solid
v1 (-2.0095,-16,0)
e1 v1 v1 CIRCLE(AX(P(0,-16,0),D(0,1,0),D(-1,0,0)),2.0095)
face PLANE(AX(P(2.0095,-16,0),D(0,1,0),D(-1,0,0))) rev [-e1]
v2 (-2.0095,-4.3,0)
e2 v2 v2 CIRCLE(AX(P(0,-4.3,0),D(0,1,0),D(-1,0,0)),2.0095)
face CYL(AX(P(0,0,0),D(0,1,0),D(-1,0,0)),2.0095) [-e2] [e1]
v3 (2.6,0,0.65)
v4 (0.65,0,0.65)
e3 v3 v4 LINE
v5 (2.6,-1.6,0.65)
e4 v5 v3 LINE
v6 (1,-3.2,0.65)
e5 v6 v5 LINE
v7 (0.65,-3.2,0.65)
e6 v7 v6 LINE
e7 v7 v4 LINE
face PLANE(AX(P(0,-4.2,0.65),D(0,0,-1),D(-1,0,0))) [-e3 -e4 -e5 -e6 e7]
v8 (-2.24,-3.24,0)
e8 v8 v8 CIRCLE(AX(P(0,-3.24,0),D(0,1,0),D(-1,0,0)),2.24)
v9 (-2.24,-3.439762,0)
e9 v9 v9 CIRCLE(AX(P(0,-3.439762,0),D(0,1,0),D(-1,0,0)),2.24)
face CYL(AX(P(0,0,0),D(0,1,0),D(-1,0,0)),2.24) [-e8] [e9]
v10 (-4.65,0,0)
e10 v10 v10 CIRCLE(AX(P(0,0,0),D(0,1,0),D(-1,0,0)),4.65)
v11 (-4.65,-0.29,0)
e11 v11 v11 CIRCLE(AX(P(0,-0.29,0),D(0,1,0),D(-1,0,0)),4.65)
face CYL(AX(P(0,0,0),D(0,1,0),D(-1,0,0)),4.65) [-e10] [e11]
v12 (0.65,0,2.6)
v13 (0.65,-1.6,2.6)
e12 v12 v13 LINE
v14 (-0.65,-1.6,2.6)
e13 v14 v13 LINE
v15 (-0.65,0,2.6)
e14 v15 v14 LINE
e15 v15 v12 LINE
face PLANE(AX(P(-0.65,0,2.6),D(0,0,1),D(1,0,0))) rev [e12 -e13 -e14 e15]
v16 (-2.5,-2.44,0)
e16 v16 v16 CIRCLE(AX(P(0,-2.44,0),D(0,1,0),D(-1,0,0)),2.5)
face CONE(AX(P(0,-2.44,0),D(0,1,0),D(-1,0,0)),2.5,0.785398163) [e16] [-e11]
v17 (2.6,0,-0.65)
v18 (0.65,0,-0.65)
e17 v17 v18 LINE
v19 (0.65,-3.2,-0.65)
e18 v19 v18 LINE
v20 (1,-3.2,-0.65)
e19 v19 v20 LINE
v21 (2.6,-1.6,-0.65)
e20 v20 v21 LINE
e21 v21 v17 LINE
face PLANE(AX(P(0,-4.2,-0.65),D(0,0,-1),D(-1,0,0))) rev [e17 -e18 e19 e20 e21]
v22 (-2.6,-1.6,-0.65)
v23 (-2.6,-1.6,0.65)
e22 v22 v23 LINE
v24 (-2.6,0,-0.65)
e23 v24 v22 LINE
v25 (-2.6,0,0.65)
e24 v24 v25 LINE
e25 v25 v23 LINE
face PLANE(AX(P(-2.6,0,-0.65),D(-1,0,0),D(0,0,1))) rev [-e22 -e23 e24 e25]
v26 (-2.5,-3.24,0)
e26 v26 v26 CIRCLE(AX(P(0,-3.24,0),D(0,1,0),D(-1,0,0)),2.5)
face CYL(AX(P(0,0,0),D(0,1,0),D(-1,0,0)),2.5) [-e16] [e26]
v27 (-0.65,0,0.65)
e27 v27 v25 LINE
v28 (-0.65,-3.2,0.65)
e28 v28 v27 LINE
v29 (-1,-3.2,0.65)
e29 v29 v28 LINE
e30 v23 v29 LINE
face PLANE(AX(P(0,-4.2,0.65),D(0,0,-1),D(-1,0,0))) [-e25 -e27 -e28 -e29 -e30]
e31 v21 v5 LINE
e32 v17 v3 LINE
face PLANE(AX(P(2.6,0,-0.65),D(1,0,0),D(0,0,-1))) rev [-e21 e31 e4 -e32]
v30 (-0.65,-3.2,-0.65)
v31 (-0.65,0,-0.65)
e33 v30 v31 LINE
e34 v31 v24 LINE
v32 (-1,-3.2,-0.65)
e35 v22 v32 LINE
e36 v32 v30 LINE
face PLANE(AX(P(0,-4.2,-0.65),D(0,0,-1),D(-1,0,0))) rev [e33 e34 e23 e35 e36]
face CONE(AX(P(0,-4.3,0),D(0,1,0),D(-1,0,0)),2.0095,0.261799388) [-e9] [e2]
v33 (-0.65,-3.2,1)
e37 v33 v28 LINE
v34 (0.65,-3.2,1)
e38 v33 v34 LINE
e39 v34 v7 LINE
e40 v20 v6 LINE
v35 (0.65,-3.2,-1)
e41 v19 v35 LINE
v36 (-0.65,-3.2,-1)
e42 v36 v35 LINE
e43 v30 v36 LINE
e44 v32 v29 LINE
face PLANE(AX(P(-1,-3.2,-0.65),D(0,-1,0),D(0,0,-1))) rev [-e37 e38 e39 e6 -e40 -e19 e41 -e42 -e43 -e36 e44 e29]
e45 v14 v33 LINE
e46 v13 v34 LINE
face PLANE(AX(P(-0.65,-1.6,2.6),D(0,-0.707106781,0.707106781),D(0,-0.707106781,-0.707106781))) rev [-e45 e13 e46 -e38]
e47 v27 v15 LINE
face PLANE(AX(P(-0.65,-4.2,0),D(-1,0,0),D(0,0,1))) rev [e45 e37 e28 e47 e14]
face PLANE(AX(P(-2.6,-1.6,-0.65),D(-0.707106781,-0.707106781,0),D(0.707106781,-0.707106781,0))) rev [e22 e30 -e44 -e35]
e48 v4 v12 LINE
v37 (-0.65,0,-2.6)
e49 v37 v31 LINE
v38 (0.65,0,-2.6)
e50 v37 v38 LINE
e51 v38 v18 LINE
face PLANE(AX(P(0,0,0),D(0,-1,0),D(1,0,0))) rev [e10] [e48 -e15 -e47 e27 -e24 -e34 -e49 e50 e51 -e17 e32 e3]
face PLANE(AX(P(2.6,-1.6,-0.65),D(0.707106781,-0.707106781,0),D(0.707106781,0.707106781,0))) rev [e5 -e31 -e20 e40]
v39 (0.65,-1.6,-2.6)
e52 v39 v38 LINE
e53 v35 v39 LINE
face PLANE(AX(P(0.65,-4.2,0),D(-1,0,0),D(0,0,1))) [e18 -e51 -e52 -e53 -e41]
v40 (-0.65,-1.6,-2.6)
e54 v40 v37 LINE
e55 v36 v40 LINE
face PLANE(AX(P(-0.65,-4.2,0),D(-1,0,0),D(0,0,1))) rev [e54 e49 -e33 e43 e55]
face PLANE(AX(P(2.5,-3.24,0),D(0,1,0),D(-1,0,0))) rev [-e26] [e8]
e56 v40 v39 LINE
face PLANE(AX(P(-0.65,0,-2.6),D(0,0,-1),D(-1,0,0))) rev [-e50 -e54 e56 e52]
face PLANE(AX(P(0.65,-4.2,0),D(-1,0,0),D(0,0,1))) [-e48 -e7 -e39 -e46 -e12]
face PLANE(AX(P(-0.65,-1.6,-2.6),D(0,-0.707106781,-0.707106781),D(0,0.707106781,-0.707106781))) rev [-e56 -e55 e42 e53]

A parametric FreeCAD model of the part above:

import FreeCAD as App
import Part
import Sketcher

V = App.Vector
Q = App.Units.Quantity

doc = App.newDocument("Part")
body = doc.addObject("PartDesign::Body", "Body")

sketch1 = body.newObject("Sketcher::SketchObject", "Sketch")
sketch1.AttachmentSupport = (doc.getObject("XY_Plane"), [""])
sketch1.MapMode = "FlatFace"
sketch1.addGeometry([
    Part.LineSegment(V(4.65, 0, 0), V(0, 0, 0)),
    Part.LineSegment(V(0, 0, 0), V(0, -16, 0)),
    Part.LineSegment(V(0, -16, 0), V(2.01, -16, 0)),
    Part.LineSegment(V(2.01, -16, 0), V(2.01, -4.3, 0)),
    Part.LineSegment(V(2.01, -4.3, 0), V(2.24, -3.44, 0)),
    Part.LineSegment(V(2.24, -3.44, 0), V(2.24, -3.24, 0)),
    Part.LineSegment(V(2.24, -3.24, 0), V(2.5, -3.24, 0)),
    Part.LineSegment(V(2.5, -3.24, 0), V(2.5, -2.44, 0)),
    Part.LineSegment(V(2.5, -2.44, 0), V(4.65, -0.29, 0)),
    Part.LineSegment(V(4.65, -0.29, 0), V(4.65, 0, 0)),
], False)
sketch1.addConstraint([
    Sketcher.Constraint("Coincident", 0, 2, 1, 1),
    Sketcher.Constraint("Coincident", 1, 2, 2, 1),
    Sketcher.Constraint("Coincident", 2, 2, 3, 1),
    Sketcher.Constraint("Coincident", 3, 2, 4, 1),
    Sketcher.Constraint("Coincident", 4, 2, 5, 1),
    Sketcher.Constraint("Coincident", 5, 2, 6, 1),
    Sketcher.Constraint("Coincident", 6, 2, 7, 1),
    Sketcher.Constraint("Coincident", 7, 2, 8, 1),
    Sketcher.Constraint("Coincident", 8, 2, 9, 1),
    Sketcher.Constraint("Coincident", 9, 2, 0, 1),
    Sketcher.Constraint("Horizontal", 0),
    Sketcher.Constraint("Vertical", 1),
    Sketcher.Constraint("Horizontal", 2),
    Sketcher.Constraint("Vertical", 3),
    Sketcher.Constraint("Vertical", 5),
    Sketcher.Constraint("Horizontal", 6),
    Sketcher.Constraint("Vertical", 7),
    Sketcher.Constraint("Vertical", 9),
    Sketcher.Constraint("Coincident", 0, 2, -1, 1),
    Sketcher.Constraint("DistanceY", 1, 2, 1, 1, Q("16 mm")),
    Sketcher.Constraint("Angle", 4, Q("75 deg")),
    Sketcher.Constraint("Angle", 8, Q("45 deg")),
    Sketcher.Constraint("DistanceY", 3, 1, 3, 2, Q("11.7 mm")),
    Sketcher.Constraint("DistanceY", 7, 1, 7, 2, Q("0.8 mm")),
    Sketcher.Constraint("DistanceX", 0, 2, 0, 1, Q("4.65 mm")),
    Sketcher.Constraint("DistanceX", 6, 1, 6, 2, Q("0.26 mm")),
    Sketcher.Constraint("DistanceY", 9, 1, 9, 2, Q("0.29 mm")),
    Sketcher.Constraint("DistanceX", -1, 1, 6, 2, Q("2.5 mm")),
    Sketcher.Constraint("DistanceX", 2, 1, 2, 2, Q("2.0095 mm")),
])
revolution = body.newObject("PartDesign::Revolution", "Revolution")
revolution.Profile = sketch1
revolution.ReferenceAxis = (sketch1, ["V_Axis"])
revolution.Angle = 360

sketch2 = body.newObject("Sketcher::SketchObject", "Sketch001")
sketch2.AttachmentSupport = (doc.getObject("XY_Plane"), [""])
sketch2.MapMode = "FlatFace"
sketch2.addGeometry([
    Part.LineSegment(V(-1, -3.2, 0), V(1, -3.2, 0)),
    Part.LineSegment(V(1, -3.2, 0), V(2.6, -1.6, 0)),
    Part.LineSegment(V(2.6, -1.6, 0), V(2.6, 0, 0)),
    Part.LineSegment(V(2.6, 0, 0), V(-2.6, 0, 0)),
    Part.LineSegment(V(-2.6, 0, 0), V(-2.6, -1.6, 0)),
    Part.LineSegment(V(-2.6, -1.6, 0), V(-1, -3.2, 0)),
], False)
sketch2.addConstraint([
    Sketcher.Constraint("Coincident", 0, 2, 1, 1),
    Sketcher.Constraint("Coincident", 1, 2, 2, 1),
    Sketcher.Constraint("Coincident", 2, 2, 3, 1),
    Sketcher.Constraint("Coincident", 3, 2, 4, 1),
    Sketcher.Constraint("Coincident", 4, 2, 5, 1),
    Sketcher.Constraint("Coincident", 5, 2, 0, 1),
    Sketcher.Constraint("Horizontal", 0),
    Sketcher.Constraint("Vertical", 2),
    Sketcher.Constraint("Horizontal", 3),
    Sketcher.Constraint("Vertical", 4),
    Sketcher.Constraint("Symmetric", 2, 2, 3, 2, -1, 1),
    Sketcher.Constraint("Perpendicular", 1, 5),
    Sketcher.Constraint("Horizontal", 1, 2, 4, 2),
    Sketcher.Constraint("Equal", 1, 5),
    Sketcher.Constraint("DistanceX", 0, 1, 0, 2, Q("2 mm")),
    Sketcher.Constraint("DistanceX", 3, 2, 3, 1, Q("5.2 mm")),
    Sketcher.Constraint("DistanceY", 2, 1, 2, 2, Q("1.6 mm")),
])
pocket1 = body.newObject("PartDesign::Pocket", "Pocket")
pocket1.Profile = sketch2
pocket1.Type = "TwoLengths"
pocket1.Length = 0.65
pocket1.Length2 = 0.65
pocket1.Reversed = True

sketch3 = body.newObject("Sketcher::SketchObject", "Sketch002")
sketch3.AttachmentSupport = (doc.getObject("YZ_Plane"), [""])
sketch3.MapMode = "FlatFace"
sketch3.addGeometry([
    Part.LineSegment(V(-3.2, 1, 0), V(-3.2, -1, 0)),
    Part.LineSegment(V(-3.2, -1, 0), V(-1.6, -2.6, 0)),
    Part.LineSegment(V(-1.6, -2.6, 0), V(0, -2.6, 0)),
    Part.LineSegment(V(0, -2.6, 0), V(0, 2.6, 0)),
    Part.LineSegment(V(0, 2.6, 0), V(-1.6, 2.6, 0)),
    Part.LineSegment(V(-1.6, 2.6, 0), V(-3.2, 1, 0)),
], False)
sketch3.addConstraint([
    Sketcher.Constraint("Coincident", 0, 2, 1, 1),
    Sketcher.Constraint("Coincident", 1, 2, 2, 1),
    Sketcher.Constraint("Coincident", 2, 2, 3, 1),
    Sketcher.Constraint("Coincident", 3, 2, 4, 1),
    Sketcher.Constraint("Coincident", 4, 2, 5, 1),
    Sketcher.Constraint("Coincident", 5, 2, 0, 1),
    Sketcher.Constraint("Vertical", 0),
    Sketcher.Constraint("Horizontal", 2),
    Sketcher.Constraint("Vertical", 3),
    Sketcher.Constraint("Horizontal", 4),
    Sketcher.Constraint("Symmetric", 2, 2, 3, 2, -1, 1),
    Sketcher.Constraint("Perpendicular", 1, 5),
    Sketcher.Constraint("Vertical", 1, 2, 4, 2),
    Sketcher.Constraint("Equal", 1, 5),
    Sketcher.Constraint("DistanceY", 0, 2, 0, 1, Q("2 mm")),
    Sketcher.Constraint("DistanceX", 2, 1, 2, 2, Q("1.6 mm")),
    Sketcher.Constraint("DistanceY", 3, 1, 3, 2, Q("5.2 mm")),
])
pocket2 = body.newObject("PartDesign::Pocket", "Pocket001")
pocket2.Profile = sketch3
pocket2.Type = "TwoLengths"
pocket2.Length = 0.65
pocket2.Length2 = 0.65
pocket2.Reversed = True

doc.recompute()
